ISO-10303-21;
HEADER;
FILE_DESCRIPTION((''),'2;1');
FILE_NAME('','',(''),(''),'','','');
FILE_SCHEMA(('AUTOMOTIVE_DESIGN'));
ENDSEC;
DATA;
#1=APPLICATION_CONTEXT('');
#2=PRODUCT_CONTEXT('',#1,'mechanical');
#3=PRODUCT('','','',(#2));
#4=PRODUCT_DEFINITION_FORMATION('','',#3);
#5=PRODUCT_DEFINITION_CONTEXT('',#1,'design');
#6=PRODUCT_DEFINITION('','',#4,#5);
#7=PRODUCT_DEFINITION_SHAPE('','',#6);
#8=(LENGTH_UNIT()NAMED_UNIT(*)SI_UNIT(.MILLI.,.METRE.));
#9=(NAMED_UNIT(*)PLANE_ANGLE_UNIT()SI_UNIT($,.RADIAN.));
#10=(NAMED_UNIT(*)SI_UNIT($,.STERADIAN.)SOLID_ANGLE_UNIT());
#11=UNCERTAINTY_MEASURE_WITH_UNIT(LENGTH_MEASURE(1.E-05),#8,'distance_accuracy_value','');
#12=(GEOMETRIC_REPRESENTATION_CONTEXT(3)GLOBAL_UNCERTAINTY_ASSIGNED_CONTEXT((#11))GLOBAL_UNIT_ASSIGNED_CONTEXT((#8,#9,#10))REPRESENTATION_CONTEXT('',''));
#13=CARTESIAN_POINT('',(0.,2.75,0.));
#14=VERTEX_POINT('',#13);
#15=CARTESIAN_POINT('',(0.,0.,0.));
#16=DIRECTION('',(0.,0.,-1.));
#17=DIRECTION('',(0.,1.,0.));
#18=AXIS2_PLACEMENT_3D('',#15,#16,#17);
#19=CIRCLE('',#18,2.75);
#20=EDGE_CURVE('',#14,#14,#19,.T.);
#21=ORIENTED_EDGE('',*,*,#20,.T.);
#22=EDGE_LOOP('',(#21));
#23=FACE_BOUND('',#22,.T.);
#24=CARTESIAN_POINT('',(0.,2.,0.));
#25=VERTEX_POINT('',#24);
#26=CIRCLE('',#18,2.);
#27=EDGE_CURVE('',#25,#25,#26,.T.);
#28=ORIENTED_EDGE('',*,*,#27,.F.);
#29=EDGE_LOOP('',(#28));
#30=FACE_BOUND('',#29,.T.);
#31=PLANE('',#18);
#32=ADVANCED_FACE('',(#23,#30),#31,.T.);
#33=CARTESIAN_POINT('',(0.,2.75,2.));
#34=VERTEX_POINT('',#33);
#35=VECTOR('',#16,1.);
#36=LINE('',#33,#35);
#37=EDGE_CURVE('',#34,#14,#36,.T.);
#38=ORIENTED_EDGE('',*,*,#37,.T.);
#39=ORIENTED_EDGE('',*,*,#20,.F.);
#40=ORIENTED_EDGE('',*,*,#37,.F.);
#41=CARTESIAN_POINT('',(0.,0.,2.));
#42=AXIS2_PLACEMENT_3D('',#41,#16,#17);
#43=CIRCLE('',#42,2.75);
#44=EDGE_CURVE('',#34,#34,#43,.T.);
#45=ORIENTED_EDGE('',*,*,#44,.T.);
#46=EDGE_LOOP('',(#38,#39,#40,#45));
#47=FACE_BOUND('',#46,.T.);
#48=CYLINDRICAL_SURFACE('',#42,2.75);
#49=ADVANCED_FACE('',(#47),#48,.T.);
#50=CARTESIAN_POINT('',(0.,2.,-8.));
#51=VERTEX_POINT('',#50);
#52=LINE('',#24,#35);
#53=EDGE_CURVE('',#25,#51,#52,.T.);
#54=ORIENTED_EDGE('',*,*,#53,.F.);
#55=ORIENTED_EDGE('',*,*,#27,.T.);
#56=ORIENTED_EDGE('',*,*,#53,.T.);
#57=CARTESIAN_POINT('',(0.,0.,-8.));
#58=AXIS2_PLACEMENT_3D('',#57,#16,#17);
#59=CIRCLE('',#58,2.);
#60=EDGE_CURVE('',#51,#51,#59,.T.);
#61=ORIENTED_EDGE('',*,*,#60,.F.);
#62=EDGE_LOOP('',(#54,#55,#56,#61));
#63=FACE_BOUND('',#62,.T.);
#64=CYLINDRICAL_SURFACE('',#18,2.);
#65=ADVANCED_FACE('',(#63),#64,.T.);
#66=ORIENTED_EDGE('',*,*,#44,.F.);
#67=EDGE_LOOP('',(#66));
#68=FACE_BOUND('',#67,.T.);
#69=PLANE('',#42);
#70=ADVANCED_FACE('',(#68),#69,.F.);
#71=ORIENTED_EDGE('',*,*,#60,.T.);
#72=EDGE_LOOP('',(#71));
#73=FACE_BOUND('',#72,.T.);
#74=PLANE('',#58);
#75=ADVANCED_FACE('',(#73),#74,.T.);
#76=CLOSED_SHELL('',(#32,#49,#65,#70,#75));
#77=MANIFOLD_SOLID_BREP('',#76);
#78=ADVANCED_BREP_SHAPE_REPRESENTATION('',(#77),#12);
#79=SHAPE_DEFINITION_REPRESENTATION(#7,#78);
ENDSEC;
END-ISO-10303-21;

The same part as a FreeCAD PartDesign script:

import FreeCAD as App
import Part
import Sketcher
Q = App.Units.Quantity

doc = App.newDocument("Part")
params = doc.addObject("Spreadsheet::Sheet", "Params")
for row, (alias, value) in enumerate([
    ("sketch1_width", "2 mm"),
    ("sketch1_height", "8 mm"),
    ("sketch1_width2", "2.75 mm"),
    ("revolution_angle", "360 deg"),
], start=1):
    params.set(f"A{row}", alias)
    params.set(f"B{row}", "=" + value)
    params.setAlias(f"B{row}", alias)

body = doc.addObject("PartDesign::Body", "Body")

# Sketch on YZ plane
sketch1 = body.newObject("Sketcher::SketchObject", "Sketch")
sketch1.AttachmentSupport = (doc.getObject("YZ_Plane"), [""])
sketch1.MapMode = "FlatFace"
sketch1.addGeometry(Part.LineSegment(App.Vector(2.8, 2, 0), App.Vector(0, 2, 0)), False)
sketch1.addGeometry(Part.LineSegment(App.Vector(0, 2, 0), App.Vector(0, -8, 0)), False)
sketch1.addGeometry(Part.LineSegment(App.Vector(0, -8, 0), App.Vector(2, -8, 0)), False)
sketch1.addGeometry(Part.LineSegment(App.Vector(2, -8, 0), App.Vector(2, 0, 0)), False)
sketch1.addGeometry(Part.LineSegment(App.Vector(2, 0, 0), App.Vector(2.8, 0, 0)), False)
sketch1.addGeometry(Part.LineSegment(App.Vector(2.8, 0, 0), App.Vector(2.8, 2, 0)), False)
sketch1.addConstraint(Sketcher.Constraint("Coincident", 0, 2, 1, 1))
sketch1.addConstraint(Sketcher.Constraint("Coincident", 1, 2, 2, 1))
sketch1.addConstraint(Sketcher.Constraint("Coincident", 2, 2, 3, 1))
sketch1.addConstraint(Sketcher.Constraint("Coincident", 3, 2, 4, 1))
sketch1.addConstraint(Sketcher.Constraint("Coincident", 4, 2, 5, 1))
sketch1.addConstraint(Sketcher.Constraint("Coincident", 5, 2, 0, 1))
sketch1.addConstraint(Sketcher.Constraint("Horizontal", 0))
sketch1.addConstraint(Sketcher.Constraint("Vertical", 1))
sketch1.addConstraint(Sketcher.Constraint("Horizontal", 2))
sketch1.addConstraint(Sketcher.Constraint("Vertical", 3))
sketch1.addConstraint(Sketcher.Constraint("Horizontal", 4))
sketch1.addConstraint(Sketcher.Constraint("Vertical", 5))
sketch1.addConstraint(Sketcher.Constraint("PointOnObject", 0, 2, -2))
sketch1.addConstraint(Sketcher.Constraint("PointOnObject", 3, 2, -1))
sketch1.addConstraint(Sketcher.Constraint("Equal", 2, 5))
sketch1.addConstraint(Sketcher.Constraint("DistanceX", 2, 1, 2, 2, Q("2 mm")))
sketch1.addConstraint(Sketcher.Constraint("DistanceY", 3, 1, 3, 2, Q("8 mm")))
sketch1.addConstraint(Sketcher.Constraint("DistanceX", 0, 2, 0, 1, Q("2.75 mm")))
sketch1.setExpression("Constraints[15]", "Params.sketch1_width")
sketch1.setExpression("Constraints[16]", "Params.sketch1_height")
sketch1.setExpression("Constraints[17]", "Params.sketch1_width2")
revolution = body.newObject("PartDesign::Revolution", "Revolution")
revolution.Profile = sketch1
revolution.ReferenceAxis = (sketch1, ["V_Axis"])
revolution.setExpression("Angle", "Params.revolution_angle")

doc.recompute()
